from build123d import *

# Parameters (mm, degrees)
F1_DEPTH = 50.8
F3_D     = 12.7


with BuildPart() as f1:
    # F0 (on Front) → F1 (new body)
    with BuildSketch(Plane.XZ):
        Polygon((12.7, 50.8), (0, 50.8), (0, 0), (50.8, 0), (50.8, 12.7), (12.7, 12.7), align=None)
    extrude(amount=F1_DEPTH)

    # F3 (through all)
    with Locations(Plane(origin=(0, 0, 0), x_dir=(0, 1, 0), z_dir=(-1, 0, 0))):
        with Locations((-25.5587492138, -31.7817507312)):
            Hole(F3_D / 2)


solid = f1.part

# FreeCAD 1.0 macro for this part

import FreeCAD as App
import Part
import Sketcher

V = App.Vector
Q = App.Units.Quantity


def add_polygon(sketch, points):
    """Adds a closed chain of lines whose ends are joined by coincident constraints."""
    first, n = sketch.GeometryCount, len(points)
    for a, b in zip(points, points[1:] + points[:1]):
        sketch.addGeometry(Part.LineSegment(App.Vector(*a, 0), App.Vector(*b, 0)), False)
    for i in range(n):
        sketch.addConstraint(Sketcher.Constraint("Coincident", first + i, 2, first + (i + 1) % n, 1))

doc = App.newDocument("Part")
body = doc.addObject("PartDesign::Body", "Body")

sketch1 = body.newObject("Sketcher::SketchObject", "Sketch")
sketch1.AttachmentSupport = (doc.getObject("XZ_Plane"), [""])
sketch1.MapMode = "FlatFace"
add_polygon(sketch1, [(13, 51), (0, 51), (0, 0), (51, 0), (51, 13), (13, 13)])
sketch1.addConstraint(Sketcher.Constraint("Horizontal", 0))
sketch1.addConstraint(Sketcher.Constraint("Vertical", 1))
sketch1.addConstraint(Sketcher.Constraint("Horizontal", 2))
sketch1.addConstraint(Sketcher.Constraint("Vertical", 3))
sketch1.addConstraint(Sketcher.Constraint("Horizontal", 4))
sketch1.addConstraint(Sketcher.Constraint("Vertical", 5))
sketch1.addConstraint(Sketcher.Constraint("Coincident", 1, 2, -1, 1))
sketch1.addConstraint(Sketcher.Constraint("Equal", 2, 1))
sketch1.addConstraint(Sketcher.Constraint("Equal", 0, 3))
sketch1.addConstraint(Sketcher.Constraint("DistanceX", 2, 1, 2, 2, Q("2 in")))
sketch1.addConstraint(Sketcher.Constraint("DistanceX", 0, 2, 0, 1, Q("0.5 in")))
pad1 = body.newObject("PartDesign::Pad", "Pad")
pad1.Profile = sketch1
pad1.Length = Q("2 in")

sketch2 = body.newObject("Sketcher::SketchObject", "Sketch001")
sketch2.AttachmentSupport = (doc.getObject("YZ_Plane"), [""])
sketch2.MapMode = "FlatFace"
sketch2.addGeometry(Part.Circle(V(-26, 32, 0), V(0, 0, 1), 6), False)
sketch2.addConstraint(Sketcher.Constraint("Diameter", 0, Q("0.5 in")))
sketch2.addConstraint(Sketcher.Constraint("DistanceX", 0, 3, -1, 1, Q("25.558749 mm")))
sketch2.addConstraint(Sketcher.Constraint("DistanceY", -1, 1, 0, 3, Q("31.781751 mm")))
doc.recompute()
hole = body.newObject("PartDesign::Hole", "Hole")
hole.Profile = sketch2
hole.ThreadType = "None"
hole.Diameter = Q("0.5 in")
hole.DepthType = "ThroughAll"
hole.Reversed = True

doc.recompute()
